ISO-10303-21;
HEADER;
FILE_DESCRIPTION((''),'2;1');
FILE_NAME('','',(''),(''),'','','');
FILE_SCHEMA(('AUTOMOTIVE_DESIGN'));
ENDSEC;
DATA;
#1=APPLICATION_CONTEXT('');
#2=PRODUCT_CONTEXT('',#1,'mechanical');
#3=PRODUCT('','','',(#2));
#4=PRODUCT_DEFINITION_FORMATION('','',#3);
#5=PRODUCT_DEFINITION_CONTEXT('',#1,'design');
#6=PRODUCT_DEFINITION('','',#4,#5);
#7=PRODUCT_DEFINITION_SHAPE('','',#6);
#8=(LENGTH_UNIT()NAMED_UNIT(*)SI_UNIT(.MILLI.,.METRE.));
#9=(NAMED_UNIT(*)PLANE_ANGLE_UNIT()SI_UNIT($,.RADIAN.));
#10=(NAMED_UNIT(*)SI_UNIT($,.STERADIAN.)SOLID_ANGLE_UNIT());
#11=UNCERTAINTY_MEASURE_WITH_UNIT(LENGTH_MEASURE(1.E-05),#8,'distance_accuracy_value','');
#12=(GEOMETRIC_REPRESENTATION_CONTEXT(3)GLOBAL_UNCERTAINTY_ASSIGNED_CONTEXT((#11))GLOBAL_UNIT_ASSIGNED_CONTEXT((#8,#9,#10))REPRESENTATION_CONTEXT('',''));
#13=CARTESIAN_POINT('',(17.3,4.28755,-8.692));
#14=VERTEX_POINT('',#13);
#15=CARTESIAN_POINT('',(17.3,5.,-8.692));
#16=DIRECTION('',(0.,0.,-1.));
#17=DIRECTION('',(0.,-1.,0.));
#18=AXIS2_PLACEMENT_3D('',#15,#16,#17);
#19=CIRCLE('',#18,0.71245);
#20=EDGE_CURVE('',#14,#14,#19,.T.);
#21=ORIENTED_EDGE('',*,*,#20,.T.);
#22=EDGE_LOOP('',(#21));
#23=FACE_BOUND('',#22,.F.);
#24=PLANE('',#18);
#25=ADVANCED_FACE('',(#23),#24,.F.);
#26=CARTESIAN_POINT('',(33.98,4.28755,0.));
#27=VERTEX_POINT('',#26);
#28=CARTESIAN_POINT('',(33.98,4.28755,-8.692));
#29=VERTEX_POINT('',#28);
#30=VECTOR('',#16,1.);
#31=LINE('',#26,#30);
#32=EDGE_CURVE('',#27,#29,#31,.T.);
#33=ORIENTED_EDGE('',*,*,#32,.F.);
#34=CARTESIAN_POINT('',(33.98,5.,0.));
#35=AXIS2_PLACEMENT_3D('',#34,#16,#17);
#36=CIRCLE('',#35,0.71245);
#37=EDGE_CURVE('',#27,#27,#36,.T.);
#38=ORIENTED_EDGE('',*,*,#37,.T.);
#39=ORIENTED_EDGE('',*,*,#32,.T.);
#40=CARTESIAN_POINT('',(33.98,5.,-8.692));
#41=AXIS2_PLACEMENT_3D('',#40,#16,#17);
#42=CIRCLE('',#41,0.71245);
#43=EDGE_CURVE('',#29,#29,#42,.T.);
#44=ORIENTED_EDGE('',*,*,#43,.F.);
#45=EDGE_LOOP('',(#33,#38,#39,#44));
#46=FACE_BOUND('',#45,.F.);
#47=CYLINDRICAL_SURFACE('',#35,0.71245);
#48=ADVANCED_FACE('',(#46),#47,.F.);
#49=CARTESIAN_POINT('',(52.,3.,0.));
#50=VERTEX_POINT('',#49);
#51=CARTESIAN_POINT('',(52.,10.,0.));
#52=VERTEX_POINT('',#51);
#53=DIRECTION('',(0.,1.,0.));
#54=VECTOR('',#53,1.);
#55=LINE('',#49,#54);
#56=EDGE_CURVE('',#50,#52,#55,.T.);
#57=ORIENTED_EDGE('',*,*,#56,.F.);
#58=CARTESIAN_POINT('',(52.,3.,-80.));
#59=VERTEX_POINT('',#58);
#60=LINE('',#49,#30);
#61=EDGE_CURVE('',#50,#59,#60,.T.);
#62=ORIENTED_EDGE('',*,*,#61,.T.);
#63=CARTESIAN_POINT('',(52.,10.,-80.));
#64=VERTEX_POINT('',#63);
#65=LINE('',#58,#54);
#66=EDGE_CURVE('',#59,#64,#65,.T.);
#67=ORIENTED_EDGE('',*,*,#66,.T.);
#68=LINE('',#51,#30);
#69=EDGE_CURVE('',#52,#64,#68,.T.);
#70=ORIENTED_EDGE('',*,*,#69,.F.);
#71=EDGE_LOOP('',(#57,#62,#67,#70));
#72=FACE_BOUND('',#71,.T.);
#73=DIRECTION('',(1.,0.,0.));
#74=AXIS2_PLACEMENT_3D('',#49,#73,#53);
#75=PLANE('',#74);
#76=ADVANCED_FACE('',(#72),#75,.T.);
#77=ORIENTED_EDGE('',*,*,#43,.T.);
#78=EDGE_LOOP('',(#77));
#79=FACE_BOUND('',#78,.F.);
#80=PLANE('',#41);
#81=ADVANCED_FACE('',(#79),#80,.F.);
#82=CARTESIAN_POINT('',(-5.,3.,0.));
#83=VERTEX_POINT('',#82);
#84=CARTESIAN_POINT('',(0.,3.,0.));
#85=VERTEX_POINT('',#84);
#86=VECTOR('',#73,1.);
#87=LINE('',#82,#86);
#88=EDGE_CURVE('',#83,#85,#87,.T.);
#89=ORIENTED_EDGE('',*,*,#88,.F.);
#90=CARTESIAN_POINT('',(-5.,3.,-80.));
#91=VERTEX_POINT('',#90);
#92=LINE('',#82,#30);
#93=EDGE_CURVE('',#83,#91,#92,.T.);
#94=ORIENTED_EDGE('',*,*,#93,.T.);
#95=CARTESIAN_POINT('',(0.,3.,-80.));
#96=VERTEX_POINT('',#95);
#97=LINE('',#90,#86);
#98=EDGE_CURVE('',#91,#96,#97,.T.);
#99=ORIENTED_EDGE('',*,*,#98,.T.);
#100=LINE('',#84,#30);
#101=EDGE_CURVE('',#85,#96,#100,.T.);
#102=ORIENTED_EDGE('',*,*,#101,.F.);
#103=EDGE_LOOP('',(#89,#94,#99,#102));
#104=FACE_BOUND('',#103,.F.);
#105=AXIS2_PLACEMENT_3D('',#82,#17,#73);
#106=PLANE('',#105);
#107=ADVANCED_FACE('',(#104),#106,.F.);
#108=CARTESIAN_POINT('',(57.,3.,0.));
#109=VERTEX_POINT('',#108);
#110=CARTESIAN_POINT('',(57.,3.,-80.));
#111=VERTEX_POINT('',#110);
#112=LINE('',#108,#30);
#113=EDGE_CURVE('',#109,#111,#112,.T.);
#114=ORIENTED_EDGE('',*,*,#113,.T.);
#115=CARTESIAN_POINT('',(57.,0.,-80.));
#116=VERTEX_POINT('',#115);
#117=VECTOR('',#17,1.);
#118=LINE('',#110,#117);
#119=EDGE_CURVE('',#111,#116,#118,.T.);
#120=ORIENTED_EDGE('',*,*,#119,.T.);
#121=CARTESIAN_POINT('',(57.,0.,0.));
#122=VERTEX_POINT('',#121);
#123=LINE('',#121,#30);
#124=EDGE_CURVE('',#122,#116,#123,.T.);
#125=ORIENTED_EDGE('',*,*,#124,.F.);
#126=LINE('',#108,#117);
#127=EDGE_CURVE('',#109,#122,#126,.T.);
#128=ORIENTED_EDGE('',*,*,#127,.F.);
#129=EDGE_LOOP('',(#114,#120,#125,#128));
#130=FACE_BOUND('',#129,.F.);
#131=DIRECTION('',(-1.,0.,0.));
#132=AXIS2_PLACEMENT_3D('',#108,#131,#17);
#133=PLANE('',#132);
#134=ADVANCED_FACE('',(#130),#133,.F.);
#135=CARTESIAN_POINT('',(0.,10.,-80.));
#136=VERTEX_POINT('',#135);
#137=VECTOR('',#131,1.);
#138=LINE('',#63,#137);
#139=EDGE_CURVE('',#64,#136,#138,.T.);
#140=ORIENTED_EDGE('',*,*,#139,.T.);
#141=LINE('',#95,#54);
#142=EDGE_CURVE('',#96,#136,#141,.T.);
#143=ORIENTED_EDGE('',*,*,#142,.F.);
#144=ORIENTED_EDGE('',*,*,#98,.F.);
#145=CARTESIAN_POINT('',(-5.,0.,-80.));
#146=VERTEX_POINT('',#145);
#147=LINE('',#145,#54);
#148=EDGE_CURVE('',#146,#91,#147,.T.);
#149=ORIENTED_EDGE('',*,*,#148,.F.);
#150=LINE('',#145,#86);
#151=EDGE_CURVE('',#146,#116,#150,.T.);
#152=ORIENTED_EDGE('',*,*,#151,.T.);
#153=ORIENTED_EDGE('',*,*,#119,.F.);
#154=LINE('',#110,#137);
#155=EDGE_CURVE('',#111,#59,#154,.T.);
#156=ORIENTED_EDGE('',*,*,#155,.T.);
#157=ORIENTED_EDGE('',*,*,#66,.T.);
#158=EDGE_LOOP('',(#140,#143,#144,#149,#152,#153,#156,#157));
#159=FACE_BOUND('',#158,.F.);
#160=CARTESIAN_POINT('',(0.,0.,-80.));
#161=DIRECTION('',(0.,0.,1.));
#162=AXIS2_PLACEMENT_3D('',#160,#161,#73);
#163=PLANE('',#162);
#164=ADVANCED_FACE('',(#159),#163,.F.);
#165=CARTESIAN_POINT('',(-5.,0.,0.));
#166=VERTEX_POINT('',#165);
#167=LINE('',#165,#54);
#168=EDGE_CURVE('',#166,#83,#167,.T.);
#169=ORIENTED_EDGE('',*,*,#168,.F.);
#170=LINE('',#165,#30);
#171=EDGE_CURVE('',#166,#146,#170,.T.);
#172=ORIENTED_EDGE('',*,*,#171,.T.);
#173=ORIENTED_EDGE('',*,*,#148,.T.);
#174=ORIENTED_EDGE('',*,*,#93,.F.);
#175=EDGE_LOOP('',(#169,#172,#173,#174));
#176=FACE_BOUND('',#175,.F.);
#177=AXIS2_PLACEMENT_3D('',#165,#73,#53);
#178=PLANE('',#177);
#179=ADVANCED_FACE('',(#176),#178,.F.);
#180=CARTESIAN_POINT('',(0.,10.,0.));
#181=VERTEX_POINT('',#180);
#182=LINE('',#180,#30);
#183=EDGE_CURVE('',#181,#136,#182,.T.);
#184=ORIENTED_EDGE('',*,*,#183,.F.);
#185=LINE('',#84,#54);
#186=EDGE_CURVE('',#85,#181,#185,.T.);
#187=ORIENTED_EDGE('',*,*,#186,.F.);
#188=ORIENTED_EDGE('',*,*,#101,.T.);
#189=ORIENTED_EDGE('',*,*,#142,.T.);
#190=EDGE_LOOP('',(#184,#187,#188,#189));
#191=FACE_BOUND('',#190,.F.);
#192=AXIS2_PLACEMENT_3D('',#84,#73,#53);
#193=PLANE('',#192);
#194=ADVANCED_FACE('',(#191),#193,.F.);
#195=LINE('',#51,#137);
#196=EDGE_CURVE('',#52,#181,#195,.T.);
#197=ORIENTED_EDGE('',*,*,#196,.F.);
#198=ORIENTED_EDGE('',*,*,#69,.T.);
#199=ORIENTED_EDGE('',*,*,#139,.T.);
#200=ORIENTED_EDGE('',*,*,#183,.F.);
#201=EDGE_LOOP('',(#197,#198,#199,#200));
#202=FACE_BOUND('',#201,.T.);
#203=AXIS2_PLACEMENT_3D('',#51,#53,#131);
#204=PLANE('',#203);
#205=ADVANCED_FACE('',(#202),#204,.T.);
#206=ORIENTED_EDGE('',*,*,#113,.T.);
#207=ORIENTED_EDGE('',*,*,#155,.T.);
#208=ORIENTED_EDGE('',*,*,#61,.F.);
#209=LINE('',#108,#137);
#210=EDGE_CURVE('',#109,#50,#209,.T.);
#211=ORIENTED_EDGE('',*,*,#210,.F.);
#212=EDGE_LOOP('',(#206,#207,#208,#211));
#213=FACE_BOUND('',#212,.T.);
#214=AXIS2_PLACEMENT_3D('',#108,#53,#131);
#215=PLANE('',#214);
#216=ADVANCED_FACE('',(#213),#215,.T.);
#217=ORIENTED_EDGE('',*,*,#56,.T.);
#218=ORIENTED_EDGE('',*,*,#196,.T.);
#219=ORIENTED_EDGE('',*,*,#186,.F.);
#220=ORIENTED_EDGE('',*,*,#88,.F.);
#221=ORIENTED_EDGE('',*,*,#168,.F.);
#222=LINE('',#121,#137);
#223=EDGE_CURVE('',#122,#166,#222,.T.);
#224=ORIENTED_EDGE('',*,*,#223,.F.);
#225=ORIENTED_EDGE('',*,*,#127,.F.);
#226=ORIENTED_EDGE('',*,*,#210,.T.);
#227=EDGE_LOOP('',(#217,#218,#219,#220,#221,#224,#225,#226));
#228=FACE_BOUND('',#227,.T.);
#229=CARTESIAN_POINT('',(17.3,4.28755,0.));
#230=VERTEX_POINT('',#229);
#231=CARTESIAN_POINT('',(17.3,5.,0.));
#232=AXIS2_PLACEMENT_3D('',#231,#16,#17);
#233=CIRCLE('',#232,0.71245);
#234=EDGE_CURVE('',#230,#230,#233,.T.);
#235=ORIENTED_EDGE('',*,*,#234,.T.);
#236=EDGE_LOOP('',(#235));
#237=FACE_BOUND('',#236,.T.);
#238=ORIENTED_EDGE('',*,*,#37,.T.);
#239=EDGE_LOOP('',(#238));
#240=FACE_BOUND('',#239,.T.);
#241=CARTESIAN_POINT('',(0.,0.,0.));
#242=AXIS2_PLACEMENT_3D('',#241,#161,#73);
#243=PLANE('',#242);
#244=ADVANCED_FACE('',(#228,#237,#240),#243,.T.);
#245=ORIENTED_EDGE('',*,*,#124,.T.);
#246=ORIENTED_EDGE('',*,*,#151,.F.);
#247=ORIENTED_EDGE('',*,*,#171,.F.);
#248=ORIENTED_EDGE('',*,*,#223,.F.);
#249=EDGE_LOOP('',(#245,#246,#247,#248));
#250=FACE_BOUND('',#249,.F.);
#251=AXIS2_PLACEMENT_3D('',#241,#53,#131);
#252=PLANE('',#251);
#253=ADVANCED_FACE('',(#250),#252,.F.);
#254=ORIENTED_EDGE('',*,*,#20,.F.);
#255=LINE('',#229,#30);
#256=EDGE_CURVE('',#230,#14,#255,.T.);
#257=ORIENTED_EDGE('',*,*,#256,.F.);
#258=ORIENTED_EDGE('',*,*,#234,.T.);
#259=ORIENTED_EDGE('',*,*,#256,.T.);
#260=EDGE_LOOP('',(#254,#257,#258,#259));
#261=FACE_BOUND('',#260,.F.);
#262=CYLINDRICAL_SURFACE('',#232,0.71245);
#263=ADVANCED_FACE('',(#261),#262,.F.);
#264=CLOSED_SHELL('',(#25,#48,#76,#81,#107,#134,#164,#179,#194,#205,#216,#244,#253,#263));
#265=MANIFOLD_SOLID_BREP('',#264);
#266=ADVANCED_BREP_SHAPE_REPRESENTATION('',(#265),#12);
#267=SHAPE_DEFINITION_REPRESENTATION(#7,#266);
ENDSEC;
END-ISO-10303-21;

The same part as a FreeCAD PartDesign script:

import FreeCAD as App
import Part
import Sketcher
Q = App.Units.Quantity


def add_polygon(sketch, points):
    """Adds a closed chain of lines whose ends are joined by coincident constraints."""
    first, n = sketch.GeometryCount, len(points)
    for a, b in zip(points, points[1:] + points[:1]):
        sketch.addGeometry(Part.LineSegment(App.Vector(*a, 0), App.Vector(*b, 0)), False)
    for i in range(n):
        sketch.addConstraint(Sketcher.Constraint("Coincident", first + i, 2, first + (i + 1) % n, 1))

doc = App.newDocument("Part")
params = doc.addObject("Spreadsheet::Sheet", "Params")
for row, (alias, value) in enumerate([
    ("sketch1_width", "5 mm"),
    ("sketch1_width2", "52 mm"),
    ("sketch1_height", "3 mm"),
    ("pad1_length", "80 mm"),
    ("hole_diameter", "1.4249 mm"),
    ("hole_depth", "8.692 mm"),
], start=1):
    params.set(f"A{row}", alias)
    params.set(f"B{row}", "=" + value)
    params.setAlias(f"B{row}", alias)

body = doc.addObject("PartDesign::Body", "Body")

# Sketch on XY plane
sketch1 = doc.addObject("Sketcher::SketchObject", "Sketch")
body.addObject(sketch1)
sketch1.AttachmentSupport = (doc.XY_Plane, [""])
sketch1.MapMode = "FlatFace"
add_polygon(sketch1, [(-5, 0), (57, 0), (57, 3), (52, 3), (52, 10), (0, 10), (0, 3), (-5, 3)])  # lines 0-7
sketch1.addConstraint(Sketcher.Constraint("Horizontal", 0))
sketch1.addConstraint(Sketcher.Constraint("Vertical", 1))
sketch1.addConstraint(Sketcher.Constraint("Horizontal", 2))
sketch1.addConstraint(Sketcher.Constraint("Vertical", 3))
sketch1.addConstraint(Sketcher.Constraint("Horizontal", 4))
sketch1.addConstraint(Sketcher.Constraint("Vertical", 5))
sketch1.addConstraint(Sketcher.Constraint("Horizontal", 6))
sketch1.addConstraint(Sketcher.Constraint("Vertical", 7))
sketch1.addConstraint(Sketcher.Constraint("PointOnObject", 0, 2, -1))
sketch1.addConstraint(Sketcher.Constraint("PointOnObject", 4, 2, -2))
sketch1.addConstraint(Sketcher.Constraint("Horizontal", 2, 2, 5, 2))
sketch1.addConstraint(Sketcher.Constraint("Equal", 2, 6))
sketch1.addConstraint(Sketcher.Constraint("DistanceX", 2, 2, 2, 1, Q("5 mm")))
sketch1.addConstraint(Sketcher.Constraint("DistanceX", 4, 2, 4, 1, Q("52 mm")))
sketch1.addConstraint(Sketcher.Constraint("DistanceY", 1, 1, 1, 2, Q("3 mm")))
sketch1.addConstraint(Sketcher.Constraint("DistanceY", -1, 1, 3, 2, Q("10 mm")))
sketch1.setExpression("Constraints[20]", "Params.sketch1_width")
sketch1.setExpression("Constraints[21]", "Params.sketch1_width2")
sketch1.setExpression("Constraints[22]", "Params.sketch1_height")
pad1 = doc.addObject("PartDesign::Pad", "Pad")
body.addObject(pad1)
pad1.Profile = sketch1
pad1.setExpression("Length", "Params.pad1_length")
pad1.Reversed = True

# Sketch on XY plane
sketch2 = doc.addObject("Sketcher::SketchObject", "Sketch001")
body.addObject(sketch2)
sketch2.AttachmentSupport = (doc.XY_Plane, [""])
sketch2.MapMode = "FlatFace"
sketch2.addGeometry(Part.Circle(App.Vector(33.98, 5, 0), App.Vector(0, 0, 1), 0.71245), False)
sketch2.addGeometry(Part.Circle(App.Vector(17.3, 5, 0), App.Vector(0, 0, 1), 0.71245), False)
sketch2.addConstraint(Sketcher.Constraint("Equal", 0, 1))
sketch2.addConstraint(Sketcher.Constraint("Horizontal", 0, 3, 1, 3))
sketch2.addConstraint(Sketcher.Constraint("Diameter", 0, Q("1.425 mm")))
sketch2.addConstraint(Sketcher.Constraint("DistanceY", -1, 1, 0, 3, Q("5 mm")))
sketch2.addConstraint(Sketcher.Constraint("DistanceX", -1, 1, 1, 3, Q("17.3 mm")))
sketch2.addConstraint(Sketcher.Constraint("DistanceX", -1, 1, 0, 3, Q("33.98 mm")))
doc.recompute()
hole = doc.addObject("PartDesign::Hole", "Hole")
body.addObject(hole)
hole.Profile = sketch2
hole.ThreadType = "None"
hole.setExpression("Diameter", "Params.hole_diameter")
hole.DepthType = "Dimension"
hole.setExpression("Depth", "Params.hole_depth")
hole.DrillPoint = "Flat"

doc.recompute()
